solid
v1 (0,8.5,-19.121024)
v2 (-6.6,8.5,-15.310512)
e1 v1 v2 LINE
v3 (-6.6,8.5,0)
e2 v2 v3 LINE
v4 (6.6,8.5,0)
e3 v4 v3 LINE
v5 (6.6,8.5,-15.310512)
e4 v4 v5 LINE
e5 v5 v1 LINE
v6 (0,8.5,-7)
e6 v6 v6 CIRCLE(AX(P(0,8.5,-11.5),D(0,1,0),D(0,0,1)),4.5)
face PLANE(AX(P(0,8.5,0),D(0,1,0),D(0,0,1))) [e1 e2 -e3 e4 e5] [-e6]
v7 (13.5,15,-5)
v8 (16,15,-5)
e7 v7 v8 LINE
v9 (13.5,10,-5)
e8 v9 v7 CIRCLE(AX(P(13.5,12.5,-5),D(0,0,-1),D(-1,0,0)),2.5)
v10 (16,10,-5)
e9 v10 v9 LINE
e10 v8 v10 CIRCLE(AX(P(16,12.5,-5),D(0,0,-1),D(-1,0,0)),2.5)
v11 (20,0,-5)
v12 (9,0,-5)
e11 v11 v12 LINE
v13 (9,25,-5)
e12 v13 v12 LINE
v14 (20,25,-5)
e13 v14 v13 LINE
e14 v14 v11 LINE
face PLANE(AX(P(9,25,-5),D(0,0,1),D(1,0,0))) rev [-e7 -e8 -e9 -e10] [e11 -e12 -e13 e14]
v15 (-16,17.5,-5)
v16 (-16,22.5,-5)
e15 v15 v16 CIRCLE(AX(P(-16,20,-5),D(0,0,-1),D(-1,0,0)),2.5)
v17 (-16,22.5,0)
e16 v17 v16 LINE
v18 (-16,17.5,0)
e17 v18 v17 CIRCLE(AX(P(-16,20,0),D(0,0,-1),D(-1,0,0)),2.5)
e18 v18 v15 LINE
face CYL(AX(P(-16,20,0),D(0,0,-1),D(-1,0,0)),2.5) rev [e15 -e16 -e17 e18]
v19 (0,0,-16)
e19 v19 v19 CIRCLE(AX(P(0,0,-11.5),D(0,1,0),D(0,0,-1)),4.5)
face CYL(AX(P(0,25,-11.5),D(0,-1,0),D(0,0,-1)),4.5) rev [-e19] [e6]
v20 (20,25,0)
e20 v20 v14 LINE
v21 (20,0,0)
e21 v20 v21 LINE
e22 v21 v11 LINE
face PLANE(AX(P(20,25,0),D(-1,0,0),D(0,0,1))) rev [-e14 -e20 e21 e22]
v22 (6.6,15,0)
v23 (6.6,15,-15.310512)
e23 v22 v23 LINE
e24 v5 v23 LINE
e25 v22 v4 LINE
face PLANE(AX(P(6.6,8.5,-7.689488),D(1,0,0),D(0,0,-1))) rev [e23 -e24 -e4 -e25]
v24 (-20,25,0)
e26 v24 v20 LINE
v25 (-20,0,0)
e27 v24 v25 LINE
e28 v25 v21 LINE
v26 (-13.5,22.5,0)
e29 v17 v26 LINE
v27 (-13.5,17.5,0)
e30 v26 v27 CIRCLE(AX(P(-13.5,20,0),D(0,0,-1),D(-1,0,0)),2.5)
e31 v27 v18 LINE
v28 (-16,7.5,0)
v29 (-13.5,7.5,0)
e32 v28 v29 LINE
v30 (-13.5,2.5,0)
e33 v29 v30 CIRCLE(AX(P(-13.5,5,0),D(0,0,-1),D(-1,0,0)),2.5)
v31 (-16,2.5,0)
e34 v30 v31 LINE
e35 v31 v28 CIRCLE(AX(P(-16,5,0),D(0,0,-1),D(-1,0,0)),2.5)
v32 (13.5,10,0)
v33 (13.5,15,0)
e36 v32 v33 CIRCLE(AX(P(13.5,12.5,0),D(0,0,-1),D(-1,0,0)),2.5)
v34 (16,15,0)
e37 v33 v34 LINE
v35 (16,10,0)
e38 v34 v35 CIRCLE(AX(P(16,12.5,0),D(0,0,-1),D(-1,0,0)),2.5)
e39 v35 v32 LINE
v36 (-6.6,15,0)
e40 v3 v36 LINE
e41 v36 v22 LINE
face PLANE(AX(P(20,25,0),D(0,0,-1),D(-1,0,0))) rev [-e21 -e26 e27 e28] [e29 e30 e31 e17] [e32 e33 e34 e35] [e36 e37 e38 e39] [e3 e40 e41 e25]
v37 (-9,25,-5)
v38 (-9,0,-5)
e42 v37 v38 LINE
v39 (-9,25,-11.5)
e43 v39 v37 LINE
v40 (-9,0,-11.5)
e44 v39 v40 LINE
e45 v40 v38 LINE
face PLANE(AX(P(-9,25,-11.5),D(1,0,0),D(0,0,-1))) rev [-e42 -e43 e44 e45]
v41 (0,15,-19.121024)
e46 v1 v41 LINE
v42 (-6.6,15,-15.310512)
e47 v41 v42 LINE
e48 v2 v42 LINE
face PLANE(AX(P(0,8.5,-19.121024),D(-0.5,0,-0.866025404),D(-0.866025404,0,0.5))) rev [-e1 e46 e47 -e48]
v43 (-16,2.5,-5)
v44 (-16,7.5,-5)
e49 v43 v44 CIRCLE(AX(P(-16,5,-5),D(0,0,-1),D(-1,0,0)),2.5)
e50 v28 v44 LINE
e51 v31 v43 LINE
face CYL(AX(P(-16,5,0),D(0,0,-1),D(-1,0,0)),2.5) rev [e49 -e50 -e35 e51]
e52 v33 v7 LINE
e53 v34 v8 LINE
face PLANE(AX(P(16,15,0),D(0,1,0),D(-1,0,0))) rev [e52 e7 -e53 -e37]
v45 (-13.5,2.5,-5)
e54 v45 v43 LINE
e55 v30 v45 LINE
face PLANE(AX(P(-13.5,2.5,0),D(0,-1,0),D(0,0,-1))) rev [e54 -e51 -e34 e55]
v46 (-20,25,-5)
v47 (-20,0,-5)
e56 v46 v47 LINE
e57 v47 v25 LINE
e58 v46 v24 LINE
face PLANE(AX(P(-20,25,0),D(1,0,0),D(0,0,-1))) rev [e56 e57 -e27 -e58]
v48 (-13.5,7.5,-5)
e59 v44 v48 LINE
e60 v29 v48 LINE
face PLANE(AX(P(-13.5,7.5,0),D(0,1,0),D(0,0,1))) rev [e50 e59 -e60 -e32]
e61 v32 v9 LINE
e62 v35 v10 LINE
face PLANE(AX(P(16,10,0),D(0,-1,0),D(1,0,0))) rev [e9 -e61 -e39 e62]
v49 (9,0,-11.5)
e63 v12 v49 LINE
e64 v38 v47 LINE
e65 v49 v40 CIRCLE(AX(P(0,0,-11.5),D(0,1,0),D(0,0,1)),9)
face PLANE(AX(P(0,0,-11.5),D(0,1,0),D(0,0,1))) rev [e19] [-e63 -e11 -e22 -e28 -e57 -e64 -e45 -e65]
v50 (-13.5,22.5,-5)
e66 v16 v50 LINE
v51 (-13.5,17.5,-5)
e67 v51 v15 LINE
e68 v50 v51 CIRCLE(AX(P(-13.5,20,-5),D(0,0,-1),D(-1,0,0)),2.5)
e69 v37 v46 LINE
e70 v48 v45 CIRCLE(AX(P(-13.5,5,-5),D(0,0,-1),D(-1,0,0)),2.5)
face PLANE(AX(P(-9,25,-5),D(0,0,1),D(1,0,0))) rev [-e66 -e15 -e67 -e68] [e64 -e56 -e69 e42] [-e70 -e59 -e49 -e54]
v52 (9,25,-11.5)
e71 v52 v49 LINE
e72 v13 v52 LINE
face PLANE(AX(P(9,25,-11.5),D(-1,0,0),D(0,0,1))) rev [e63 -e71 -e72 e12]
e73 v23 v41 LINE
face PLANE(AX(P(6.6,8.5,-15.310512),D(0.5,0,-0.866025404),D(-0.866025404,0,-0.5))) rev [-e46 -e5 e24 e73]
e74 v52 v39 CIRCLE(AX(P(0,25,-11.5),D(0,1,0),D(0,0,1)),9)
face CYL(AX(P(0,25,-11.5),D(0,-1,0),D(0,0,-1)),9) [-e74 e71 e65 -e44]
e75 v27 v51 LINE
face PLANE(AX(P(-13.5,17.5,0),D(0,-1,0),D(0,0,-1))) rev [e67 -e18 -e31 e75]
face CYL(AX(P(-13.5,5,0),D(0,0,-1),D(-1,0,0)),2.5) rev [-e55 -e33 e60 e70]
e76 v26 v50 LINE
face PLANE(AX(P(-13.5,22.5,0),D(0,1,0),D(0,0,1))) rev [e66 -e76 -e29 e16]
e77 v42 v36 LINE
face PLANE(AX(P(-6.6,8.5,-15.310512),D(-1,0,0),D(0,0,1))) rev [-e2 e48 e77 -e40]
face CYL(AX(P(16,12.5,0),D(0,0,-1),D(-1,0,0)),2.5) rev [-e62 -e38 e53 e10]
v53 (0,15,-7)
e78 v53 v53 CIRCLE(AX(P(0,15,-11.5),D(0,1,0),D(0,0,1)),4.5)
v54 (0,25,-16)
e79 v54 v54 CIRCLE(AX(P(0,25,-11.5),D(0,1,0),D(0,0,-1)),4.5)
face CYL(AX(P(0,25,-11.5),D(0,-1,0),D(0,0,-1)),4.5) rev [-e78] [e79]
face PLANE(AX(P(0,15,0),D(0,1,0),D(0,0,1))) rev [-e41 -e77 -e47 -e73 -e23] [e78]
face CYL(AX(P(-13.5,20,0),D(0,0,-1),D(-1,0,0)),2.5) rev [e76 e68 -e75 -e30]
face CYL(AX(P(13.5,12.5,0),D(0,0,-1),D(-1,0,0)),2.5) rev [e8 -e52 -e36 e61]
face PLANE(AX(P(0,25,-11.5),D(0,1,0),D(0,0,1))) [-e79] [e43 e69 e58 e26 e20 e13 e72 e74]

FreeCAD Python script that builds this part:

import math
import FreeCAD as App
import Part
import Sketcher
from FreeCAD import Vector
Q = App.Units.Quantity


def add_polygon(sketch, points):
    """Adds a closed chain of lines whose ends are joined by coincident constraints."""
    first, n = sketch.GeometryCount, len(points)
    for a, b in zip(points, points[1:] + points[:1]):
        sketch.addGeometry(Part.LineSegment(App.Vector(*a, 0), App.Vector(*b, 0)), False)
    for i in range(n):
        sketch.addConstraint(Sketcher.Constraint("Coincident", first + i, 2, first + (i + 1) % n, 1))

doc = App.newDocument("Part")
body = doc.addObject("PartDesign::Body", "Body")

sketch1 = body.newObject("Sketcher::SketchObject", "Sketch")
sketch1.AttachmentSupport = (doc.getObject("XZ_Plane"), [""])
sketch1.MapMode = "FlatFace"
sketch1.addGeometry(Part.LineSegment(Vector(-20, 0, 0), Vector(20, 0, 0)), False)
sketch1.addGeometry(Part.LineSegment(Vector(20, 0, 0), Vector(20, -5, 0)), False)
sketch1.addGeometry(Part.LineSegment(Vector(20, -5, 0), Vector(9, -5, 0)), False)
sketch1.addGeometry(Part.LineSegment(Vector(9, -5, 0), Vector(9, -11.5, 0)), False)
sketch1.addGeometry(Part.ArcOfCircle(Part.Circle(Vector(0, -11.5, 0), Vector(0, 0, 1), 9), math.radians(180), math.radians(360)), False)
sketch1.addGeometry(Part.LineSegment(Vector(-9, -11.5, 0), Vector(-9, -5, 0)), False)
sketch1.addGeometry(Part.LineSegment(Vector(-9, -5, 0), Vector(-20, -5, 0)), False)
sketch1.addGeometry(Part.LineSegment(Vector(-20, -5, 0), Vector(-20, 0, 0)), False)
sketch1.addGeometry(Part.Circle(Vector(0, -11.5, 0), Vector(0, 0, 1), 4.5), False)
sketch1.addConstraint(Sketcher.Constraint("Coincident", 0, 2, 1, 1))
sketch1.addConstraint(Sketcher.Constraint("Coincident", 1, 2, 2, 1))
sketch1.addConstraint(Sketcher.Constraint("Coincident", 2, 2, 3, 1))
sketch1.addConstraint(Sketcher.Constraint("Tangent", 3, 2, 4, 2))
sketch1.addConstraint(Sketcher.Constraint("Tangent", 4, 1, 5, 1))
sketch1.addConstraint(Sketcher.Constraint("Coincident", 5, 2, 6, 1))
sketch1.addConstraint(Sketcher.Constraint("Coincident", 6, 2, 7, 1))
sketch1.addConstraint(Sketcher.Constraint("Coincident", 7, 2, 0, 1))
sketch1.addConstraint(Sketcher.Constraint("Horizontal", 0))
sketch1.addConstraint(Sketcher.Constraint("Vertical", 1))
sketch1.addConstraint(Sketcher.Constraint("Horizontal", 2))
sketch1.addConstraint(Sketcher.Constraint("Vertical", 3))
sketch1.addConstraint(Sketcher.Constraint("Vertical", 5))
sketch1.addConstraint(Sketcher.Constraint("Horizontal", 6))
sketch1.addConstraint(Sketcher.Constraint("Vertical", 7))
sketch1.addConstraint(Sketcher.Constraint("Coincident", 8, 3, 4, 3))
sketch1.addConstraint(Sketcher.Constraint("Symmetric", 0, 2, 7, 2, -1, 1))
sketch1.addConstraint(Sketcher.Constraint("Symmetric", 2, 2, 5, 2, -2))
sketch1.addConstraint(Sketcher.Constraint("Diameter", 8, Q("9 mm")))
sketch1.addConstraint(Sketcher.Constraint("Radius", 4, Q("9 mm")))
sketch1.addConstraint(Sketcher.Constraint("DistanceX", 0, 1, 0, 2, Q("40 mm")))
sketch1.addConstraint(Sketcher.Constraint("DistanceY", 1, 2, 1, 1, Q("5 mm")))
sketch1.addConstraint(Sketcher.Constraint("DistanceY", 3, 2, 3, 1, Q("6.5 mm")))
pad1 = body.newObject("PartDesign::Pad", "Pad")
pad1.Profile = sketch1
pad1.Length = 25
pad1.Reversed = True

sketch2 = body.newObject("Sketcher::SketchObject", "Sketch001")
sketch2.AttachmentSupport = (doc.getObject("XZ_Plane"), [""])
sketch2.MapMode = "FlatFace"
sketch2.AttachmentOffset = App.Placement(Vector(0, 0, -15), App.Rotation())
add_polygon(sketch2, [(0, -19.121024), (-6.6, -15.310512), (-6.6, -7.689488), (0, -3.878976), (6.6, -7.689488), (6.6, -15.310512)])
sketch2.addConstraint(Sketcher.Constraint("Vertical", 1))
sketch2.addConstraint(Sketcher.Constraint("Vertical", 4))
sketch2.addConstraint(Sketcher.Constraint("Symmetric", 1, 2, 3, 2, -2))
sketch2.addConstraint(Sketcher.Constraint("PointOnObject", 2, 2, -2))
sketch2.addConstraint(Sketcher.Constraint("PointOnObject", 5, 2, -2))
sketch2.addConstraint(Sketcher.Constraint("Parallel", 0, 3))
sketch2.addConstraint(Sketcher.Constraint("Parallel", 2, 5))
sketch2.addConstraint(Sketcher.Constraint("Angle", 0, Q("150 deg")))
sketch2.addConstraint(Sketcher.Constraint("DistanceX", 0, 2, -1, 1, Q("6.6 mm")))
sketch2.addConstraint(Sketcher.Constraint("DistanceY", 1, 1, 1, 2, Q("7.621024 mm")))
sketch2.addConstraint(Sketcher.Constraint("DistanceY", 0, 2, -1, 1, Q("15.310512 mm")))
pocket1 = body.newObject("PartDesign::Pocket", "Pocket")
pocket1.Profile = sketch2
pocket1.Length = 6.5
pocket1.Reversed = True

sketch3 = body.newObject("Sketcher::SketchObject", "Sketch002")
sketch3.AttachmentSupport = (doc.getObject("XY_Plane"), [""])
sketch3.MapMode = "FlatFace"
sketch3.AttachmentOffset = App.Placement(Vector(0, 0, -7.689488), App.Rotation())
add_polygon(sketch3, [(6.6, 15), (6.6, 8.5), (-6.6, 8.5), (-6.6, 15)])
sketch3.addConstraint(Sketcher.Constraint("Vertical", 0))
sketch3.addConstraint(Sketcher.Constraint("Horizontal", 1))
sketch3.addConstraint(Sketcher.Constraint("Vertical", 2))
sketch3.addConstraint(Sketcher.Constraint("Horizontal", 3))
sketch3.addConstraint(Sketcher.Constraint("DistanceX", 1, 2, 1, 1, Q("13.2 mm")))
sketch3.addConstraint(Sketcher.Constraint("DistanceY", 0, 2, 0, 1, Q("6.5 mm")))
sketch3.addConstraint(Sketcher.Constraint("DistanceY", -1, 1, 2, 2, Q("15 mm")))
sketch3.addConstraint(Sketcher.Constraint("DistanceX", -1, 1, 0, 2, Q("6.6 mm")))
pocket2 = body.newObject("PartDesign::Pocket", "Pocket001")
pocket2.Profile = sketch3
pocket2.Type = "ThroughAll"
pocket2.Reversed = True

sketch4 = body.newObject("Sketcher::SketchObject", "Sketch003")
sketch4.AttachmentSupport = (doc.getObject("XY_Plane"), [""])
sketch4.MapMode = "FlatFace"
sketch4.AttachmentOffset = App.Placement(Vector(0, 0, -5), App.Rotation())
sketch4.addGeometry(Part.LineSegment(Vector(13.5, 15, 0), Vector(16, 15, 0)), False)
sketch4.addGeometry(Part.ArcOfCircle(Part.Circle(Vector(16, 12.5, 0), Vector(0, 0, 1), 2.5), math.radians(-90), math.radians(90)), False)
sketch4.addGeometry(Part.LineSegment(Vector(16, 10, 0), Vector(13.5, 10, 0)), False)
sketch4.addGeometry(Part.ArcOfCircle(Part.Circle(Vector(13.5, 12.5, 0), Vector(0, 0, 1), 2.5), math.radians(90), math.radians(270)), False)
sketch4.addGeometry(Part.LineSegment(Vector(-16, 22.5, 0), Vector(-13.5, 22.5, 0)), False)
sketch4.addGeometry(Part.ArcOfCircle(Part.Circle(Vector(-13.5, 20, 0), Vector(0, 0, 1), 2.5), math.radians(-90), math.radians(90)), False)
sketch4.addGeometry(Part.LineSegment(Vector(-13.5, 17.5, 0), Vector(-16, 17.5, 0)), False)
sketch4.addGeometry(Part.ArcOfCircle(Part.Circle(Vector(-16, 20, 0), Vector(0, 0, 1), 2.5), math.radians(90), math.radians(270)), False)
sketch4.addGeometry(Part.LineSegment(Vector(-16, 7.5, 0), Vector(-13.5, 7.5, 0)), False)
sketch4.addGeometry(Part.ArcOfCircle(Part.Circle(Vector(-13.5, 5, 0), Vector(0, 0, 1), 2.5), math.radians(-90), math.radians(90)), False)
sketch4.addGeometry(Part.LineSegment(Vector(-13.5, 2.5, 0), Vector(-16, 2.5, 0)), False)
sketch4.addGeometry(Part.ArcOfCircle(Part.Circle(Vector(-16, 5, 0), Vector(0, 0, 1), 2.5), math.radians(90), math.radians(270)), False)
sketch4.addConstraint(Sketcher.Constraint("Tangent", 0, 2, 1, 2))
sketch4.addConstraint(Sketcher.Constraint("Tangent", 1, 1, 2, 1))
sketch4.addConstraint(Sketcher.Constraint("Tangent", 2, 2, 3, 2))
sketch4.addConstraint(Sketcher.Constraint("Tangent", 3, 1, 0, 1))
sketch4.addConstraint(Sketcher.Constraint("Tangent", 4, 2, 5, 2))
sketch4.addConstraint(Sketcher.Constraint("Tangent", 5, 1, 6, 1))
sketch4.addConstraint(Sketcher.Constraint("Tangent", 6, 2, 7, 2))
sketch4.addConstraint(Sketcher.Constraint("Tangent", 7, 1, 4, 1))
sketch4.addConstraint(Sketcher.Constraint("Tangent", 8, 2, 9, 2))
sketch4.addConstraint(Sketcher.Constraint("Tangent", 9, 1, 10, 1))
sketch4.addConstraint(Sketcher.Constraint("Tangent", 10, 2, 11, 2))
sketch4.addConstraint(Sketcher.Constraint("Tangent", 11, 1, 8, 1))
sketch4.addConstraint(Sketcher.Constraint("Horizontal", 0))
sketch4.addConstraint(Sketcher.Constraint("Horizontal", 2))
sketch4.addConstraint(Sketcher.Constraint("Horizontal", 4))
sketch4.addConstraint(Sketcher.Constraint("Horizontal", 6))
sketch4.addConstraint(Sketcher.Constraint("Horizontal", 8))
sketch4.addConstraint(Sketcher.Constraint("Horizontal", 10))
sketch4.addConstraint(Sketcher.Constraint("Equal", 3, 5))
sketch4.addConstraint(Sketcher.Constraint("Equal", 7, 9))
sketch4.addConstraint(Sketcher.Constraint("Vertical", 5, 3, 9, 3))
sketch4.addConstraint(Sketcher.Constraint("Vertical", 7, 3, 11, 3))
sketch4.addConstraint(Sketcher.Constraint("Equal", 2, 4))
sketch4.addConstraint(Sketcher.Constraint("Radius", 1, Q("2.5 mm")))
sketch4.addConstraint(Sketcher.Constraint("DistanceX", 0, 1, 0, 2, Q("2.5 mm")))
sketch4.addConstraint(Sketcher.Constraint("DistanceX", -1, 1, 1, 3, Q("16 mm")))
sketch4.addConstraint(Sketcher.Constraint("DistanceY", -1, 1, 5, 3, Q("20 mm")))
sketch4.addConstraint(Sketcher.Constraint("DistanceX", 7, 3, -1, 1, Q("16 mm")))
sketch4.addConstraint(Sketcher.Constraint("DistanceY", -1, 1, 9, 3, Q("5 mm")))
sketch4.addConstraint(Sketcher.Constraint("DistanceY", -1, 1, 0, 2, Q("15 mm")))
pocket3 = body.newObject("PartDesign::Pocket", "Pocket002")
pocket3.Profile = sketch4
pocket3.Type = "ThroughAll"
pocket3.Reversed = True

doc.recompute()
